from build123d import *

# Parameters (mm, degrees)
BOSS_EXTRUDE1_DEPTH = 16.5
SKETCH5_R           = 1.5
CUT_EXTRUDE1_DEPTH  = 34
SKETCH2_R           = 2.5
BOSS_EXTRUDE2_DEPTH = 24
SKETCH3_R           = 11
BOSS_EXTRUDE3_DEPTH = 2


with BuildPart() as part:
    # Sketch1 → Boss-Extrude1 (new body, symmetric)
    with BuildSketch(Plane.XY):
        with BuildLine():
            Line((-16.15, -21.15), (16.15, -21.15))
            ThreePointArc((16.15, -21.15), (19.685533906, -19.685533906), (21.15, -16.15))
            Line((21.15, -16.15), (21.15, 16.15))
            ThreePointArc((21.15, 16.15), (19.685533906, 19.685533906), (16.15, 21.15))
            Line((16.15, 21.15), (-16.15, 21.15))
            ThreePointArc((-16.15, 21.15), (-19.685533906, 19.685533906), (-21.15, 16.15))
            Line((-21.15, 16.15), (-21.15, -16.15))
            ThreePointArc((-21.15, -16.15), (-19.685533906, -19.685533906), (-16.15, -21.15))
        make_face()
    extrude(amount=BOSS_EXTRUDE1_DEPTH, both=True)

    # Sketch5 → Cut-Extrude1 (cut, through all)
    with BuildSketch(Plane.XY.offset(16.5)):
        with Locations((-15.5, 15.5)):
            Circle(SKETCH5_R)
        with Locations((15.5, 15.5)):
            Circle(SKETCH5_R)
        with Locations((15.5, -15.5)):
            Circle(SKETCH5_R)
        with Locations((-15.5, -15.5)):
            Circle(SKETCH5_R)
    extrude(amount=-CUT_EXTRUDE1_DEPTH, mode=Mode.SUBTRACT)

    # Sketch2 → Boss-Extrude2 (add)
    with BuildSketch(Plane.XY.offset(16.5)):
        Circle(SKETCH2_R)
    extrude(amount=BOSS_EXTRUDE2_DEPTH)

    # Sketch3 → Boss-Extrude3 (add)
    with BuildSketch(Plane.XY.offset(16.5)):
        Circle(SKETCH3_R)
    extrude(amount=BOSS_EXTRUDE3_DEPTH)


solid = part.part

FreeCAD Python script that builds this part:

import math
import FreeCAD as App
import Part
import Sketcher

V = App.Vector
Q = App.Units.Quantity

doc = App.newDocument("Part")
body = doc.addObject("PartDesign::Body", "Body")

sketch1 = body.newObject("Sketcher::SketchObject", "Sketch")
sketch1.AttachmentSupport = (doc.getObject("XY_Plane"), [""])
sketch1.MapMode = "FlatFace"
sketch1.addGeometry([
    Part.LineSegment(V(-16, -21, 0), V(16, -21, 0)),
    Part.ArcOfCircle(Part.Circle(V(16, -16, 0), V(0, 0, 1), 5), math.radians(-90), math.radians(0)),
    Part.LineSegment(V(21, -16, 0), V(21, 16, 0)),
    Part.ArcOfCircle(Part.Circle(V(16, 16, 0), V(0, 0, 1), 5), math.radians(0), math.radians(90)),
    Part.LineSegment(V(16, 21, 0), V(-16, 21, 0)),
    Part.ArcOfCircle(Part.Circle(V(-16, 16, 0), V(0, 0, 1), 5), math.radians(90), math.radians(180)),
    Part.LineSegment(V(-21, 16, 0), V(-21, -16, 0)),
    Part.ArcOfCircle(Part.Circle(V(-16, -16, 0), V(0, 0, 1), 5), math.radians(180), math.radians(270)),
], False)
sketch1.addConstraint([
    Sketcher.Constraint("Tangent", 0, 2, 1, 1),
    Sketcher.Constraint("Tangent", 1, 2, 2, 1),
    Sketcher.Constraint("Tangent", 2, 2, 3, 1),
    Sketcher.Constraint("Tangent", 3, 2, 4, 1),
    Sketcher.Constraint("Tangent", 4, 2, 5, 1),
    Sketcher.Constraint("Tangent", 5, 2, 6, 1),
    Sketcher.Constraint("Tangent", 6, 2, 7, 1),
    Sketcher.Constraint("Tangent", 7, 2, 0, 1),
    Sketcher.Constraint("Horizontal", 0),
    Sketcher.Constraint("Vertical", 2),
    Sketcher.Constraint("Horizontal", 4),
    Sketcher.Constraint("Vertical", 6),
    Sketcher.Constraint("Equal", 1, 3),
    Sketcher.Constraint("Equal", 3, 5),
    Sketcher.Constraint("Equal", 5, 7),
    Sketcher.Constraint("Symmetric", 1, 3, 5, 3, -1, 1),
    Sketcher.Constraint("Equal", 4, 2),
    Sketcher.Constraint("Radius", 1, Q("5 mm")),
    Sketcher.Constraint("DistanceX", 0, 1, 0, 2, Q("32.3 mm")),
])
pad1 = body.newObject("PartDesign::Pad", "Pad")
pad1.Profile = sketch1
pad1.Length = 33
pad1.Midplane = True

sketch2 = body.newObject("Sketcher::SketchObject", "Sketch001")
sketch2.AttachmentSupport = (doc.getObject("XY_Plane"), [""])
sketch2.MapMode = "FlatFace"
sketch2.AttachmentOffset = App.Placement(V(0, 0, 16.5), App.Rotation())
sketch2.addGeometry([
    Part.Circle(V(-15.5, 15.5, 0), V(0, 0, 1), 1.5),
    Part.Circle(V(15.5, 15.5, 0), V(0, 0, 1), 1.5),
    Part.Circle(V(15.5, -15.5, 0), V(0, 0, 1), 1.5),
    Part.Circle(V(-15.5, -15.5, 0), V(0, 0, 1), 1.5),
], False)
sketch2.addConstraint([
    Sketcher.Constraint("Equal", 0, 1),
    Sketcher.Constraint("Equal", 1, 2),
    Sketcher.Constraint("Equal", 2, 3),
    Sketcher.Constraint("Symmetric", 0, 3, 2, 3, -1, 1),
    Sketcher.Constraint("Symmetric", 1, 3, 3, 3, -1, 1),
    Sketcher.Constraint("Symmetric", 0, 3, 1, 3, -2),
    Sketcher.Constraint("Diameter", 0, Q("3 mm")),
    Sketcher.Constraint("DistanceX", 0, 3, 1, 3, Q("31 mm")),
    Sketcher.Constraint("DistanceY", 2, 3, 1, 3, Q("31 mm")),
])
pocket1 = body.newObject("PartDesign::Pocket", "Pocket")
pocket1.Profile = sketch2
pocket1.Type = "ThroughAll"

sketch3 = body.newObject("Sketcher::SketchObject", "Sketch002")
sketch3.AttachmentSupport = (doc.getObject("XY_Plane"), [""])
sketch3.MapMode = "FlatFace"
sketch3.AttachmentOffset = App.Placement(V(0, 0, 16.5), App.Rotation())
sketch3.addGeometry(Part.Circle(V(0, 0, 0), V(0, 0, 1), 2.5), False)
sketch3.addConstraint([
    Sketcher.Constraint("Coincident", 0, 3, -1, 1),
    Sketcher.Constraint("Diameter", 0, Q("5 mm")),
])
pad2 = body.newObject("PartDesign::Pad", "Pad001")
pad2.Profile = sketch3
pad2.Length = 24

sketch4 = body.newObject("Sketcher::SketchObject", "Sketch003")
sketch4.AttachmentSupport = (doc.getObject("XY_Plane"), [""])
sketch4.MapMode = "FlatFace"
sketch4.AttachmentOffset = App.Placement(V(0, 0, 16.5), App.Rotation())
sketch4.addGeometry(Part.Circle(V(0, 0, 0), V(0, 0, 1), 11), False)
sketch4.addConstraint([
    Sketcher.Constraint("Coincident", 0, 3, -1, 1),
    Sketcher.Constraint("Diameter", 0, Q("22 mm")),
])
pad3 = body.newObject("PartDesign::Pad", "Pad002")
pad3.Profile = sketch4
pad3.Length = 2

doc.recompute()
